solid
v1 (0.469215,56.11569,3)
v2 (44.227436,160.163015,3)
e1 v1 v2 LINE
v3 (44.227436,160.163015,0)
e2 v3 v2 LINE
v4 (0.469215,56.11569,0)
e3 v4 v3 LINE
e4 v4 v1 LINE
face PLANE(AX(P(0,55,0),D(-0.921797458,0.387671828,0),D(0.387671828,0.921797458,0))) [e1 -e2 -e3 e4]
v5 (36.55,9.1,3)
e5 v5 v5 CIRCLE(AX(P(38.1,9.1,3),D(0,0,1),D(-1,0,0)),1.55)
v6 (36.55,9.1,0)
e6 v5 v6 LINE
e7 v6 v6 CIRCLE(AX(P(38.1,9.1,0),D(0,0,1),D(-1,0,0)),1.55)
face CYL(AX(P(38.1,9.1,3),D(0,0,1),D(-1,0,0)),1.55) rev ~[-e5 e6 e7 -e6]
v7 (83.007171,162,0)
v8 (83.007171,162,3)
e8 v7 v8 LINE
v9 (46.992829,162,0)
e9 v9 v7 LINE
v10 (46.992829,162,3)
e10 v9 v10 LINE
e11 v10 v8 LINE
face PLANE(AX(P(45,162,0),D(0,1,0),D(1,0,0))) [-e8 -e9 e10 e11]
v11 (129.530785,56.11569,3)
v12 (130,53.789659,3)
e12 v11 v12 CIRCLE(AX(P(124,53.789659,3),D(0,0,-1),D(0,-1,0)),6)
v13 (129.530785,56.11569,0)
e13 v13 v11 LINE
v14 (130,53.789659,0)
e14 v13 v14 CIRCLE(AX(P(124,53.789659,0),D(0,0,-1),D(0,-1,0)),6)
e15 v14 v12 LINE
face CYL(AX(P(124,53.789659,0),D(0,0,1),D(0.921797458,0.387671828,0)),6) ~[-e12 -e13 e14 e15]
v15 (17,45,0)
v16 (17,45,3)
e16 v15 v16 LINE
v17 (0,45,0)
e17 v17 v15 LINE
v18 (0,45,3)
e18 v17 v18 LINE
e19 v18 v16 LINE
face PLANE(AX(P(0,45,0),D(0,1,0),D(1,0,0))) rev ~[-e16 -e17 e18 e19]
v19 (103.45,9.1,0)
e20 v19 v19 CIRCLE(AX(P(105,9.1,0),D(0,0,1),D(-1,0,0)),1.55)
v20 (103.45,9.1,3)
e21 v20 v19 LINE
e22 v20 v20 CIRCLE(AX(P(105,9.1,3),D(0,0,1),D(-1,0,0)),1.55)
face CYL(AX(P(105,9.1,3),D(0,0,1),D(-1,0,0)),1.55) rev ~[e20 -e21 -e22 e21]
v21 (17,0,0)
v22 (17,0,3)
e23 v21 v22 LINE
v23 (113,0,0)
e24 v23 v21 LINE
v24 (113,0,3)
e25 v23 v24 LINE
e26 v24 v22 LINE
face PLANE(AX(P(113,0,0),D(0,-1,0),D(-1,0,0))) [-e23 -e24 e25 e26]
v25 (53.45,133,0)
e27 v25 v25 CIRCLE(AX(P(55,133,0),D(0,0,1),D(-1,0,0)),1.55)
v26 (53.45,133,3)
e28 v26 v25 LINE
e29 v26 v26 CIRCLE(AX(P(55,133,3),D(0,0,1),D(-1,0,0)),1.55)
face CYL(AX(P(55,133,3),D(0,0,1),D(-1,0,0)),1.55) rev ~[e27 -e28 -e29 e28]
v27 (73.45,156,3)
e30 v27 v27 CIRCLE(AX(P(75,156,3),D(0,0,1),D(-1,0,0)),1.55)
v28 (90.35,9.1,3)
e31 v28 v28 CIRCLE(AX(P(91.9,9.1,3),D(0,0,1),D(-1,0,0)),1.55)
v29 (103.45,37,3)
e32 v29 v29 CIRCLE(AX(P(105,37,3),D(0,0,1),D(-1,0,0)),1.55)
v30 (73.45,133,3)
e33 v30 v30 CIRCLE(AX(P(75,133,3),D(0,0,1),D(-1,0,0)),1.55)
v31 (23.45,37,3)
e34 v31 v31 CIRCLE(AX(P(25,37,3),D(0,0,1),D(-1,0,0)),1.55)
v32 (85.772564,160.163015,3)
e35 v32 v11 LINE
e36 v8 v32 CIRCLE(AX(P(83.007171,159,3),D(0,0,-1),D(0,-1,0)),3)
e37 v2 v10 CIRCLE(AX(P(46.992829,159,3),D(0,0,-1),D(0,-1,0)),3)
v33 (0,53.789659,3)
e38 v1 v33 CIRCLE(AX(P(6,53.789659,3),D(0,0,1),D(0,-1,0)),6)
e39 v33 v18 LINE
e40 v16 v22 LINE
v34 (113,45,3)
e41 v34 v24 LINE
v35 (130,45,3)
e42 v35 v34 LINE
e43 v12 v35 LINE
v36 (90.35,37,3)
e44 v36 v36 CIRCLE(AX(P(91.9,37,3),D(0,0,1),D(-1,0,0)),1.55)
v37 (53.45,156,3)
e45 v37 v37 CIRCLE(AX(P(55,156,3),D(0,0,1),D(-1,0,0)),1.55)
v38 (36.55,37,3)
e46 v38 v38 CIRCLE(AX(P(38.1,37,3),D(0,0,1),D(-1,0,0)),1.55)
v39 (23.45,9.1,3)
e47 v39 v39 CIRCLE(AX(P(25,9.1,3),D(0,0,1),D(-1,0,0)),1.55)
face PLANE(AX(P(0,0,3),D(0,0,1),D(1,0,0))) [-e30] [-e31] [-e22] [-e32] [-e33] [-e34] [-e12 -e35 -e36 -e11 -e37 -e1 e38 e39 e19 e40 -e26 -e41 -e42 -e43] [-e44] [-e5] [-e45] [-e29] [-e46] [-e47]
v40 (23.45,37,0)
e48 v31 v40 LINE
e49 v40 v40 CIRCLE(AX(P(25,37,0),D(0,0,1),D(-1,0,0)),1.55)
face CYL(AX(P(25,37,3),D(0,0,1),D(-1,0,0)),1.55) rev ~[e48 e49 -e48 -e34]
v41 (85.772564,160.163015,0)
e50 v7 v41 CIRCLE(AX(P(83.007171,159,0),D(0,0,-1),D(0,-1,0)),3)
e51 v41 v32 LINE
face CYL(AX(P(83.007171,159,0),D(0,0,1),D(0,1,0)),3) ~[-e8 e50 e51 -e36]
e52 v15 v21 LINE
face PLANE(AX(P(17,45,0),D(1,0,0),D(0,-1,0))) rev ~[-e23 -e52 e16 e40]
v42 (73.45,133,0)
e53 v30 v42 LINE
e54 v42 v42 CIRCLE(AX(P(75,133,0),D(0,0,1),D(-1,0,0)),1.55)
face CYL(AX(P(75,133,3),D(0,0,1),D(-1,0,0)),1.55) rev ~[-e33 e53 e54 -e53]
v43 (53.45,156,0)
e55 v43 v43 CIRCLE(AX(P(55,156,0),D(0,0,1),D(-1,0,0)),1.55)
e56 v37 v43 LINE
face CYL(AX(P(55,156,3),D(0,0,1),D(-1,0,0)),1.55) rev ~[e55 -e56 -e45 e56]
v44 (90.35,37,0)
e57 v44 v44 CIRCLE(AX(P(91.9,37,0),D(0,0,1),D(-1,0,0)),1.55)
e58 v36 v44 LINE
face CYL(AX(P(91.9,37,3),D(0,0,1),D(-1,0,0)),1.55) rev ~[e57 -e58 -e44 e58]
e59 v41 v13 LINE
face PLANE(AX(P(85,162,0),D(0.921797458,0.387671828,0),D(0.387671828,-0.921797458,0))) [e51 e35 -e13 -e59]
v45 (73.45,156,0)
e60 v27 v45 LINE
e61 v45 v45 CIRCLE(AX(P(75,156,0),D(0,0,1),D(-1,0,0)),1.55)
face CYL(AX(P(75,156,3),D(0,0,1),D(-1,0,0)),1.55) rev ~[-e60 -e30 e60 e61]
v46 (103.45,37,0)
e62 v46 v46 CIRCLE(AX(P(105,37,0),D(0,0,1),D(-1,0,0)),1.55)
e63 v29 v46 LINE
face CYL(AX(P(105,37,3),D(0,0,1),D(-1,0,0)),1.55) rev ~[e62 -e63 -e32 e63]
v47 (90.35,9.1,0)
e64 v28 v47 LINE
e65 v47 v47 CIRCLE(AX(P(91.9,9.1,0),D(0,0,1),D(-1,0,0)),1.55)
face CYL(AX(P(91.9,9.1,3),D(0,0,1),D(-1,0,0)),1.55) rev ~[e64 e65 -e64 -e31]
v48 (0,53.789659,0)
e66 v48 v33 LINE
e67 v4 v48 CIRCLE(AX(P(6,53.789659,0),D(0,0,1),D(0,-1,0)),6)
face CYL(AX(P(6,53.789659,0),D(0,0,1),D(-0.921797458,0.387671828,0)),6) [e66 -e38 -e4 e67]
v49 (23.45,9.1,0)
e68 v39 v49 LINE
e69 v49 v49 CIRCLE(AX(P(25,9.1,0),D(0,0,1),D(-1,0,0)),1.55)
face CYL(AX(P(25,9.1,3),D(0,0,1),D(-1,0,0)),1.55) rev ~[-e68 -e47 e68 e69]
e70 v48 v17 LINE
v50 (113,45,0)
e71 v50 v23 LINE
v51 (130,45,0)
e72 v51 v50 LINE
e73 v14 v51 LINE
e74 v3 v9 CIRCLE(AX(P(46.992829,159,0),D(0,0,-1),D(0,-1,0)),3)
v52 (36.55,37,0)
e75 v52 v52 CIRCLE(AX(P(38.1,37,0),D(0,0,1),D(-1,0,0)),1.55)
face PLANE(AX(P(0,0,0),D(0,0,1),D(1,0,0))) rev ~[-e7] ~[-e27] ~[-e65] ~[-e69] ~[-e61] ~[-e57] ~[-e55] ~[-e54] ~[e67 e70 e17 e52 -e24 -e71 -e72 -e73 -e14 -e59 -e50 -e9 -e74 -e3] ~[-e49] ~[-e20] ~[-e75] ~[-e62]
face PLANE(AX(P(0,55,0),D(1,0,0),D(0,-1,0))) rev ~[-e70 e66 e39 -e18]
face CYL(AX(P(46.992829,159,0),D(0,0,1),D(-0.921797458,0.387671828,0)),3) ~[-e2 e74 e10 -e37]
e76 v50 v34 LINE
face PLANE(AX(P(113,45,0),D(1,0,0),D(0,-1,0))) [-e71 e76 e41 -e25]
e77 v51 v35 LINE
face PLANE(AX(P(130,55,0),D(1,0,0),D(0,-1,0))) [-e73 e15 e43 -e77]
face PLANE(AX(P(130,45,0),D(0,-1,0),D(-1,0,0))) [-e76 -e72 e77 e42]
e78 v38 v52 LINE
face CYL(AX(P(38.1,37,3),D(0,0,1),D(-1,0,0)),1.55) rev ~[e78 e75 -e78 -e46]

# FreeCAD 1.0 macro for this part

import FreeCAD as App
import Part
import Sketcher


def edges_at(feature, points):
    """Names of the edges that pass closest to the given points."""
    edges = feature.Shape.Edges
    near = lambda p: min(range(len(edges)), key=lambda i: edges[i].distToShape(Part.Vertex(*p))[0])
    return sorted({f"Edge{near(p) + 1}" for p in points})

doc = App.newDocument("Part")
body = doc.addObject("PartDesign::Body", "Body")

# Sketch on XY plane
sketch1 = body.newObject("Sketcher::SketchObject", "Sketch")
sketch1.AttachmentSupport = (doc.getObject("XY_Plane"), [""])
sketch1.MapMode = "FlatFace"
sketch1.addGeometry([
    Part.LineSegment(App.Vector(45, 162, 0), App.Vector(0, 55, 0)),  # 0
    Part.LineSegment(App.Vector(0, 55, 0), App.Vector(0, 45, 0)),  # 1
    Part.LineSegment(App.Vector(0, 45, 0), App.Vector(17, 45, 0)),  # 2
    Part.LineSegment(App.Vector(17, 45, 0), App.Vector(17, 0, 0)),  # 3
    Part.LineSegment(App.Vector(17, 0, 0), App.Vector(113, 0, 0)),  # 4
    Part.LineSegment(App.Vector(113, 0, 0), App.Vector(113, 45, 0)),  # 5
    Part.LineSegment(App.Vector(113, 45, 0), App.Vector(130, 45, 0)),  # 6
    Part.LineSegment(App.Vector(130, 45, 0), App.Vector(130, 55, 0)),  # 7
    Part.LineSegment(App.Vector(130, 55, 0), App.Vector(85, 162, 0)),  # 8
    Part.LineSegment(App.Vector(85, 162, 0), App.Vector(45, 162, 0)),  # 9
], False)
sketch1.addConstraint([
    Sketcher.Constraint("Coincident", 0, 2, 1, 1),
    Sketcher.Constraint("Coincident", 1, 2, 2, 1),
    Sketcher.Constraint("Coincident", 2, 2, 3, 1),
    Sketcher.Constraint("Coincident", 3, 2, 4, 1),
    Sketcher.Constraint("Coincident", 4, 2, 5, 1),
    Sketcher.Constraint("Coincident", 5, 2, 6, 1),
    Sketcher.Constraint("Coincident", 6, 2, 7, 1),
    Sketcher.Constraint("Coincident", 7, 2, 8, 1),
    Sketcher.Constraint("Coincident", 8, 2, 9, 1),
    Sketcher.Constraint("Coincident", 9, 2, 0, 1),
    Sketcher.Constraint("Vertical", 1),
    Sketcher.Constraint("Horizontal", 2),
    Sketcher.Constraint("Vertical", 3),
    Sketcher.Constraint("Horizontal", 4),
    Sketcher.Constraint("Vertical", 5),
    Sketcher.Constraint("Horizontal", 6),
    Sketcher.Constraint("Vertical", 7),
    Sketcher.Constraint("Horizontal", 9),
    Sketcher.Constraint("PointOnObject", 0, 2, -2),
    Sketcher.Constraint("PointOnObject", 3, 2, -1),
    Sketcher.Constraint("Horizontal", 2, 2, 5, 2),
    Sketcher.Constraint("Horizontal", 0, 2, 7, 2),
    Sketcher.Constraint("Equal", 2, 6),
    Sketcher.Constraint("Equal", 0, 8),
    Sketcher.Constraint("DistanceX", 2, 1, 2, 2, 17.0),
    Sketcher.Constraint("DistanceX", 9, 2, 9, 1, 40.0),
    Sketcher.Constraint("DistanceY", 1, 2, 1, 1, 10.0),
    Sketcher.Constraint("DistanceY", -1, 1, 0, 2, 55.0),
    Sketcher.Constraint("DistanceX", -1, 1, 6, 2, 130.0),
    Sketcher.Constraint("DistanceY", -1, 1, 8, 2, 162.0),
])
pad1 = body.newObject("PartDesign::Pad", "Pad")
pad1.Profile = sketch1
pad1.Length = 3

# Sketch on XY plane
sketch2 = body.newObject("Sketcher::SketchObject", "Sketch001")
sketch2.AttachmentSupport = (doc.getObject("XY_Plane"), [""])
sketch2.MapMode = "FlatFace"
sketch2.AttachmentOffset = App.Placement(App.Vector(0, 0, 3), App.Rotation())
sketch2.addGeometry([
    Part.Circle(App.Vector(55, 156, 0), App.Vector(0, 0, 1), 1.6),
    Part.Circle(App.Vector(75, 156, 0), App.Vector(0, 0, 1), 1.6),
    Part.Circle(App.Vector(55, 133, 0), App.Vector(0, 0, 1), 1.6),
    Part.Circle(App.Vector(75, 133, 0), App.Vector(0, 0, 1), 1.6),
], False)
sketch2.addConstraint([
    Sketcher.Constraint("Equal", 0, 1),
    Sketcher.Constraint("Equal", 1, 2),
    Sketcher.Constraint("Equal", 2, 3),
    Sketcher.Constraint("Horizontal", 0, 3, 1, 3),
    Sketcher.Constraint("Horizontal", 2, 3, 3, 3),
    Sketcher.Constraint("Vertical", 0, 3, 2, 3),
    Sketcher.Constraint("Vertical", 1, 3, 3, 3),
    Sketcher.Constraint("Diameter", 0, 3.1),
    Sketcher.Constraint("DistanceX", 0, 3, 1, 3, 20.0),
    Sketcher.Constraint("DistanceY", 2, 3, 0, 3, 23.0),
    Sketcher.Constraint("DistanceX", -1, 1, 0, 3, 55.0),
    Sketcher.Constraint("DistanceY", -1, 1, 0, 3, 156.0),
])
pocket1 = body.newObject("PartDesign::Pocket", "Pocket")
pocket1.Profile = sketch2
pocket1.Length = 3

# Sketch on XY plane
sketch3 = body.newObject("Sketcher::SketchObject", "Sketch002")
sketch3.AttachmentSupport = (doc.getObject("XY_Plane"), [""])
sketch3.MapMode = "FlatFace"
sketch3.AttachmentOffset = App.Placement(App.Vector(0, 0, 3), App.Rotation())
sketch3.addGeometry([
    Part.Circle(App.Vector(25, 37, 0), App.Vector(0, 0, 1), 1.6),  # 0
    Part.Circle(App.Vector(38.1, 37, 0), App.Vector(0, 0, 1), 1.6),  # 1
    Part.Circle(App.Vector(25, 9.1, 0), App.Vector(0, 0, 1), 1.6),  # 2
    Part.Circle(App.Vector(38.1, 9.1, 0), App.Vector(0, 0, 1), 1.6),  # 3
    Part.Circle(App.Vector(105, 37, 0), App.Vector(0, 0, 1), 1.6),  # 4
    Part.Circle(App.Vector(91.9, 37, 0), App.Vector(0, 0, 1), 1.6),  # 5
    Part.Circle(App.Vector(105, 9.1, 0), App.Vector(0, 0, 1), 1.6),  # 6
    Part.Circle(App.Vector(91.9, 9.1, 0), App.Vector(0, 0, 1), 1.6),  # 7
], False)
sketch3.addConstraint([
    Sketcher.Constraint("Equal", 0, 1),
    Sketcher.Constraint("Equal", 1, 2),
    Sketcher.Constraint("Equal", 2, 3),
    Sketcher.Constraint("Equal", 3, 4),
    Sketcher.Constraint("Equal", 4, 5),
    Sketcher.Constraint("Equal", 5, 6),
    Sketcher.Constraint("Equal", 6, 7),
    Sketcher.Constraint("Horizontal", 0, 3, 1, 3),
    Sketcher.Constraint("Horizontal", 2, 3, 3, 3),
    Sketcher.Constraint("Horizontal", 1, 3, 4, 3),
    Sketcher.Constraint("Horizontal", 4, 3, 5, 3),
    Sketcher.Constraint("Horizontal", 3, 3, 6, 3),
    Sketcher.Constraint("Horizontal", 6, 3, 7, 3),
    Sketcher.Constraint("Vertical", 0, 3, 2, 3),
    Sketcher.Constraint("Vertical", 1, 3, 3, 3),
    Sketcher.Constraint("Vertical", 4, 3, 6, 3),
    Sketcher.Constraint("Vertical", 5, 3, 7, 3),
    Sketcher.Constraint("Diameter", 0, 3.1),
    Sketcher.Constraint("DistanceY", -1, 1, 0, 3, 37.0),
    Sketcher.Constraint("DistanceX", 0, 3, 1, 3, 13.1),
    Sketcher.Constraint("DistanceY", 2, 3, 0, 3, 27.9),
    Sketcher.Constraint("DistanceX", 5, 3, 4, 3, 13.1),
    Sketcher.Constraint("DistanceX", -1, 1, 0, 3, 25.0),
    Sketcher.Constraint("DistanceX", -1, 1, 4, 3, 105.0),
])
pocket2 = body.newObject("PartDesign::Pocket", "Pocket001")
pocket2.Profile = sketch3
pocket2.Type = "ThroughAll"
doc.recompute()

fillet = body.newObject("PartDesign::Fillet", "Fillet")
fillet.Base = (pocket2, edges_at(pocket2, [(45, 162, 1.5), (85, 162, 1.5)]))
fillet.Radius = 3
doc.recompute()

fillet2 = body.newObject("PartDesign::Fillet", "Fillet001")
fillet2.Base = (fillet, edges_at(fillet, [(0, 55, 1.5), (130, 55, 1.5)]))
fillet2.Radius = 6

doc.recompute()
